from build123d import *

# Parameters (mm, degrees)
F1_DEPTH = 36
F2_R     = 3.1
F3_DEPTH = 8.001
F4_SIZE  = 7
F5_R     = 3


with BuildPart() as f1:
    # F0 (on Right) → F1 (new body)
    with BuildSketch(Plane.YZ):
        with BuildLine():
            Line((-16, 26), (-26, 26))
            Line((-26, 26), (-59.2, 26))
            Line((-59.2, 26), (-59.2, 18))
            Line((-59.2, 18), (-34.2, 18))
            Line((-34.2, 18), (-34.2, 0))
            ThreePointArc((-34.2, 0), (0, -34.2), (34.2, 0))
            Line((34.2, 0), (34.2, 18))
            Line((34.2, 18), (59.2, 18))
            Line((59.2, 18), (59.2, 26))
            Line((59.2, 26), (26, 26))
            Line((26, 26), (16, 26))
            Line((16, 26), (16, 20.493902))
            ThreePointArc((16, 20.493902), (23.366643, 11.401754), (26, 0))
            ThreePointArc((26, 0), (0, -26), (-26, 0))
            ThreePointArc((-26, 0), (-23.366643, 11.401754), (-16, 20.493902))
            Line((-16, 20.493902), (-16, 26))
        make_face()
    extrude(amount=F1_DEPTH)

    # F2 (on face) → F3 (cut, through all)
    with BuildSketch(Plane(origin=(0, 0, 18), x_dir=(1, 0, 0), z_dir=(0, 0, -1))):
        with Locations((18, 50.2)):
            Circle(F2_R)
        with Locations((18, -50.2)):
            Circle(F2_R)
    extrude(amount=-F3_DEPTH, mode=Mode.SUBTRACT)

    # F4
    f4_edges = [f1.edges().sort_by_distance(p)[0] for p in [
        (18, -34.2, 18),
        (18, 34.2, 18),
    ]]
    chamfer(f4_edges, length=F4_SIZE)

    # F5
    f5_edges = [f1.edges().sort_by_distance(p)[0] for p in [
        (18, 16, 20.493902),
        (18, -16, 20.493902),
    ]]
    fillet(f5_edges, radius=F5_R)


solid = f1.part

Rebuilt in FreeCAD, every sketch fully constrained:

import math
import FreeCAD as App
import Part
import Sketcher
Q = App.Units.Quantity


def edges_at(feature, points):
    """Names of the edges that pass closest to the given points."""
    edges = feature.Shape.Edges
    near = lambda p: min(range(len(edges)), key=lambda i: edges[i].distToShape(Part.Vertex(*p))[0])
    return sorted({f"Edge{near(p) + 1}" for p in points})

doc = App.newDocument("Part")
body = doc.addObject("PartDesign::Body", "Body")

# Sketch on YZ plane
sketch1 = body.newObject("Sketcher::SketchObject", "Sketch")
sketch1.AttachmentSupport = (doc.getObject("YZ_Plane"), [""])
sketch1.MapMode = "FlatFace"
sketch1.addGeometry(Part.LineSegment(App.Vector(-16, 26, 0), App.Vector(-59, 26, 0)), False)
sketch1.addGeometry(Part.LineSegment(App.Vector(-59, 26, 0), App.Vector(-59, 18, 0)), False)
sketch1.addGeometry(Part.LineSegment(App.Vector(-59, 18, 0), App.Vector(-34, 18, 0)), False)
sketch1.addGeometry(Part.LineSegment(App.Vector(-34, 18, 0), App.Vector(-34, 0, 0)), False)
sketch1.addGeometry(Part.ArcOfCircle(Part.Circle(App.Vector(0, 0, 0), App.Vector(0, 0, 1), 34), math.radians(180), math.radians(360)), False)
sketch1.addGeometry(Part.LineSegment(App.Vector(34, 0, 0), App.Vector(34, 18, 0)), False)
sketch1.addGeometry(Part.LineSegment(App.Vector(34, 18, 0), App.Vector(59, 18, 0)), False)
sketch1.addGeometry(Part.LineSegment(App.Vector(59, 18, 0), App.Vector(59, 26, 0)), False)
sketch1.addGeometry(Part.LineSegment(App.Vector(59, 26, 0), App.Vector(16, 26, 0)), False)
sketch1.addGeometry(Part.LineSegment(App.Vector(16, 26, 0), App.Vector(16, 20, 0)), False)
sketch1.addGeometry(Part.ArcOfCircle(Part.Circle(App.Vector(0, 0, 0), App.Vector(0, 0, 1), 26), math.radians(0), math.radians(52)), False)
sketch1.addGeometry(Part.ArcOfCircle(Part.Circle(App.Vector(0, 0, 0), App.Vector(0, 0, 1), 26), math.radians(180), math.radians(360)), False)
sketch1.addGeometry(Part.ArcOfCircle(Part.Circle(App.Vector(0, 0, 0), App.Vector(0, 0, 1), 26), math.radians(128), math.radians(180)), False)
sketch1.addGeometry(Part.LineSegment(App.Vector(-16, 20, 0), App.Vector(-16, 26, 0)), False)
sketch1.addConstraint(Sketcher.Constraint("Coincident", 0, 2, 1, 1))
sketch1.addConstraint(Sketcher.Constraint("Coincident", 1, 2, 2, 1))
sketch1.addConstraint(Sketcher.Constraint("Coincident", 2, 2, 3, 1))
sketch1.addConstraint(Sketcher.Constraint("Tangent", 3, 2, 4, 1))
sketch1.addConstraint(Sketcher.Constraint("Tangent", 4, 2, 5, 1))
sketch1.addConstraint(Sketcher.Constraint("Coincident", 5, 2, 6, 1))
sketch1.addConstraint(Sketcher.Constraint("Coincident", 6, 2, 7, 1))
sketch1.addConstraint(Sketcher.Constraint("Coincident", 7, 2, 8, 1))
sketch1.addConstraint(Sketcher.Constraint("Coincident", 8, 2, 9, 1))
sketch1.addConstraint(Sketcher.Constraint("Coincident", 9, 2, 10, 2))
sketch1.addConstraint(Sketcher.Constraint("Tangent", 10, 1, 11, 2))
sketch1.addConstraint(Sketcher.Constraint("Tangent", 11, 1, 12, 2))
sketch1.addConstraint(Sketcher.Constraint("Coincident", 12, 1, 13, 1))
sketch1.addConstraint(Sketcher.Constraint("Coincident", 13, 2, 0, 1))
sketch1.addConstraint(Sketcher.Constraint("Horizontal", 0))
sketch1.addConstraint(Sketcher.Constraint("Vertical", 1))
sketch1.addConstraint(Sketcher.Constraint("Horizontal", 2))
sketch1.addConstraint(Sketcher.Constraint("Vertical", 3))
sketch1.addConstraint(Sketcher.Constraint("Vertical", 5))
sketch1.addConstraint(Sketcher.Constraint("Horizontal", 6))
sketch1.addConstraint(Sketcher.Constraint("Vertical", 7))
sketch1.addConstraint(Sketcher.Constraint("Horizontal", 8))
sketch1.addConstraint(Sketcher.Constraint("Vertical", 9))
sketch1.addConstraint(Sketcher.Constraint("Vertical", 13))
sketch1.addConstraint(Sketcher.Constraint("Coincident", 4, 3, -1, 1))
sketch1.addConstraint(Sketcher.Constraint("Coincident", 10, 3, -1, 1))
sketch1.addConstraint(Sketcher.Constraint("Equal", 10, 11))
sketch1.addConstraint(Sketcher.Constraint("Equal", 11, 12))
sketch1.addConstraint(Sketcher.Constraint("Symmetric", 1, 2, 6, 2, -2))
sketch1.addConstraint(Sketcher.Constraint("Symmetric", 8, 2, 13, 2, -2))
sketch1.addConstraint(Sketcher.Constraint("PointOnObject", 10, 1, -1))
sketch1.addConstraint(Sketcher.Constraint("PointOnObject", 11, 1, -1))
sketch1.addConstraint(Sketcher.Constraint("Radius", 10, Q("26.000002 mm")))
sketch1.addConstraint(Sketcher.Constraint("Radius", 4, Q("34.2 mm")))
sketch1.addConstraint(Sketcher.Constraint("DistanceX", 2, 1, 2, 2, Q("25 mm")))
sketch1.addConstraint(Sketcher.Constraint("DistanceY", 1, 2, 1, 1, Q("8 mm")))
sketch1.addConstraint(Sketcher.Constraint("DistanceY", 3, 2, 3, 1, Q("18 mm")))
sketch1.addConstraint(Sketcher.Constraint("DistanceX", 0, 2, 0, 1, Q("43.2 mm")))
pad1 = body.newObject("PartDesign::Pad", "Pad")
pad1.Profile = sketch1
pad1.Length = 36

# Sketch on XY plane
sketch2 = body.newObject("Sketcher::SketchObject", "Sketch001")
sketch2.AttachmentSupport = (doc.getObject("XY_Plane"), [""])
sketch2.MapMode = "FlatFace"
sketch2.AttachmentOffset = App.Placement(App.Vector(0, 0, 18), App.Rotation())
sketch2.addGeometry(Part.Circle(App.Vector(18, -50.2, 0), App.Vector(0, 0, 1), 3.1), False)
sketch2.addGeometry(Part.Circle(App.Vector(18, 50.2, 0), App.Vector(0, 0, 1), 3.1), False)
sketch2.addConstraint(Sketcher.Constraint("Equal", 0, 1))
sketch2.addConstraint(Sketcher.Constraint("Symmetric", 0, 3, 1, 3, -1))
sketch2.addConstraint(Sketcher.Constraint("Diameter", 0, Q("6.2 mm")))
sketch2.addConstraint(Sketcher.Constraint("DistanceX", -1, 1, 0, 3, Q("18 mm")))
sketch2.addConstraint(Sketcher.Constraint("DistanceY", 0, 3, -1, 1, Q("50.2 mm")))
pocket1 = body.newObject("PartDesign::Pocket", "Pocket")
pocket1.Profile = sketch2
pocket1.Type = "ThroughAll"
pocket1.Reversed = True
doc.recompute()

chamfer = body.newObject("PartDesign::Chamfer", "Chamfer")
chamfer.Base = (pocket1, edges_at(pocket1, [(18, -34.2, 18), (18, 34.2, 18)]))
chamfer.Size = 7
doc.recompute()

fillet = body.newObject("PartDesign::Fillet", "Fillet")
fillet.Base = (chamfer, edges_at(chamfer, [(18, 16, 20.494), (18, -16, 20.494)]))
fillet.Radius = 3

doc.recompute()
